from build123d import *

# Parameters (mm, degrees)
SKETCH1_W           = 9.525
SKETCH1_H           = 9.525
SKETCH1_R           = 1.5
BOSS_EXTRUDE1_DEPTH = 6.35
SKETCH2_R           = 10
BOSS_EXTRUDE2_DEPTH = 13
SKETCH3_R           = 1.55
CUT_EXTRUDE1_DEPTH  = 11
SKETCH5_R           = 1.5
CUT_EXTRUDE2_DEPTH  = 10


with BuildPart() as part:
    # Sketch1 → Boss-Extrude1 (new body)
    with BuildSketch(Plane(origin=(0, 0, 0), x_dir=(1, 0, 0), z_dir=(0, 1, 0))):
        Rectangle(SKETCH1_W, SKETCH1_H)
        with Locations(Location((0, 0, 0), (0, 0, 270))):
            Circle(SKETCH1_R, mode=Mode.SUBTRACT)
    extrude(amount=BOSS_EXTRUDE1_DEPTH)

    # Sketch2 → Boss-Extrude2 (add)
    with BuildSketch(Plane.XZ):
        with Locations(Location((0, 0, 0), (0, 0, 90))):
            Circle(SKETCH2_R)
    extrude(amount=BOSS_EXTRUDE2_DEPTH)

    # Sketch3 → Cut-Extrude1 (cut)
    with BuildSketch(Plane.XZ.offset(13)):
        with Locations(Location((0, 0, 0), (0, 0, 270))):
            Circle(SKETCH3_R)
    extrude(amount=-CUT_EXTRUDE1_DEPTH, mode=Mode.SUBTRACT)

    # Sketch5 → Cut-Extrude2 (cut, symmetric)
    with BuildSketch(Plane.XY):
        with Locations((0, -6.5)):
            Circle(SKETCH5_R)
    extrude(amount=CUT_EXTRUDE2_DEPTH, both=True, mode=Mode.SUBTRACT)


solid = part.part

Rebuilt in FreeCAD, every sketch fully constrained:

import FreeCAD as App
import Part
import Sketcher
from FreeCAD import Vector
Q = App.Units.Quantity


def add_polygon(sketch, points):
    """Adds a closed chain of lines whose ends are joined by coincident constraints."""
    first, n = sketch.GeometryCount, len(points)
    for a, b in zip(points, points[1:] + points[:1]):
        sketch.addGeometry(Part.LineSegment(App.Vector(*a, 0), App.Vector(*b, 0)), False)
    for i in range(n):
        sketch.addConstraint(Sketcher.Constraint("Coincident", first + i, 2, first + (i + 1) % n, 1))

doc = App.newDocument("Part")
params = doc.addObject("Spreadsheet::Sheet", "Params")
for row, (alias, value) in enumerate([
    ("sketch1_diameter", "3 mm"),
    ("pad1_length", "6.35 mm"),
    ("sketch2_diameter", "20 mm"),
    ("pad2_length", "13 mm"),
    ("sketch3_diameter", "3.1 mm"),
    ("pocket1_length", "11 mm"),
    ("sketch4_diameter", "3 mm"),
    ("pocket2_length", "20 mm"),
], start=1):
    params.set(f"A{row}", alias)
    params.set(f"B{row}", "=" + value)
    params.setAlias(f"B{row}", alias)

body = doc.addObject("PartDesign::Body", "Body")

# Sketch on XZ plane
sketch1 = body.newObject("Sketcher::SketchObject", "Sketch")
sketch1.AttachmentSupport = (doc.getObject("XZ_Plane"), [""])
sketch1.MapMode = "FlatFace"
add_polygon(sketch1, [(-4.8, -4.8), (-4.8, 4.8), (4.8, 4.8), (4.8, -4.8)])  # lines 0-3
sketch1.addGeometry(Part.Circle(Vector(0, 0, 0), Vector(0, 0, 1), 1.5), False)  # 4
sketch1.addConstraint([
    Sketcher.Constraint("Vertical", 0),
    Sketcher.Constraint("Horizontal", 1),
    Sketcher.Constraint("Vertical", 2),
    Sketcher.Constraint("Horizontal", 3),
    Sketcher.Constraint("Coincident", 4, 3, -1, 1),
    Sketcher.Constraint("Symmetric", 0, 2, 2, 2, -1, 1),
    Sketcher.Constraint("Equal", 3, 0),
    Sketcher.Constraint("Diameter", 4, Q("3 mm")),
    Sketcher.Constraint("DistanceX", 1, 1, 1, 2, Q("9.525 mm")),
])
sketch1.setExpression("Constraints[11]", "Params.sketch1_diameter")
pad1 = body.newObject("PartDesign::Pad", "Pad")
pad1.Profile = sketch1
pad1.setExpression("Length", "Params.pad1_length")
pad1.Reversed = True

# Sketch on XZ plane
sketch2 = body.newObject("Sketcher::SketchObject", "Sketch001")
sketch2.AttachmentSupport = (doc.getObject("XZ_Plane"), [""])
sketch2.MapMode = "FlatFace"
sketch2.addGeometry(Part.Circle(Vector(0, 0, 0), Vector(0, 0, 1), 10), False)
sketch2.addConstraint([
    Sketcher.Constraint("Coincident", 0, 3, -1, 1),
    Sketcher.Constraint("Diameter", 0, Q("20 mm")),
])
sketch2.setExpression("Constraints[1]", "Params.sketch2_diameter")
pad2 = body.newObject("PartDesign::Pad", "Pad001")
pad2.Profile = sketch2
pad2.setExpression("Length", "Params.pad2_length")

# Sketch on XZ plane
sketch3 = body.newObject("Sketcher::SketchObject", "Sketch002")
sketch3.AttachmentSupport = (doc.getObject("XZ_Plane"), [""])
sketch3.MapMode = "FlatFace"
sketch3.AttachmentOffset = App.Placement(Vector(0, 0, 13), App.Rotation())
sketch3.addGeometry(Part.Circle(Vector(0, 0, 0), Vector(0, 0, 1), 1.6), False)
sketch3.addConstraint([
    Sketcher.Constraint("Coincident", 0, 3, -1, 1),
    Sketcher.Constraint("Diameter", 0, Q("3.1 mm")),
])
sketch3.setExpression("Constraints[1]", "Params.sketch3_diameter")
pocket1 = body.newObject("PartDesign::Pocket", "Pocket")
pocket1.Profile = sketch3
pocket1.setExpression("Length", "Params.pocket1_length")

# Sketch on XY plane
sketch4 = body.newObject("Sketcher::SketchObject", "Sketch003")
sketch4.AttachmentSupport = (doc.getObject("XY_Plane"), [""])
sketch4.MapMode = "FlatFace"
sketch4.addGeometry(Part.Circle(Vector(0, -6.5, 0), Vector(0, 0, 1), 1.5), False)
sketch4.addConstraint([
    Sketcher.Constraint("PointOnObject", 0, 3, -2),
    Sketcher.Constraint("Diameter", 0, Q("3 mm")),
    Sketcher.Constraint("DistanceY", 0, 3, -1, 1, Q("6.5 mm")),
])
sketch4.setExpression("Constraints[1]", "Params.sketch4_diameter")
pocket2 = body.newObject("PartDesign::Pocket", "Pocket001")
pocket2.Profile = sketch4
pocket2.setExpression("Length", "Params.pocket2_length")
pocket2.Midplane = True

doc.recompute()
